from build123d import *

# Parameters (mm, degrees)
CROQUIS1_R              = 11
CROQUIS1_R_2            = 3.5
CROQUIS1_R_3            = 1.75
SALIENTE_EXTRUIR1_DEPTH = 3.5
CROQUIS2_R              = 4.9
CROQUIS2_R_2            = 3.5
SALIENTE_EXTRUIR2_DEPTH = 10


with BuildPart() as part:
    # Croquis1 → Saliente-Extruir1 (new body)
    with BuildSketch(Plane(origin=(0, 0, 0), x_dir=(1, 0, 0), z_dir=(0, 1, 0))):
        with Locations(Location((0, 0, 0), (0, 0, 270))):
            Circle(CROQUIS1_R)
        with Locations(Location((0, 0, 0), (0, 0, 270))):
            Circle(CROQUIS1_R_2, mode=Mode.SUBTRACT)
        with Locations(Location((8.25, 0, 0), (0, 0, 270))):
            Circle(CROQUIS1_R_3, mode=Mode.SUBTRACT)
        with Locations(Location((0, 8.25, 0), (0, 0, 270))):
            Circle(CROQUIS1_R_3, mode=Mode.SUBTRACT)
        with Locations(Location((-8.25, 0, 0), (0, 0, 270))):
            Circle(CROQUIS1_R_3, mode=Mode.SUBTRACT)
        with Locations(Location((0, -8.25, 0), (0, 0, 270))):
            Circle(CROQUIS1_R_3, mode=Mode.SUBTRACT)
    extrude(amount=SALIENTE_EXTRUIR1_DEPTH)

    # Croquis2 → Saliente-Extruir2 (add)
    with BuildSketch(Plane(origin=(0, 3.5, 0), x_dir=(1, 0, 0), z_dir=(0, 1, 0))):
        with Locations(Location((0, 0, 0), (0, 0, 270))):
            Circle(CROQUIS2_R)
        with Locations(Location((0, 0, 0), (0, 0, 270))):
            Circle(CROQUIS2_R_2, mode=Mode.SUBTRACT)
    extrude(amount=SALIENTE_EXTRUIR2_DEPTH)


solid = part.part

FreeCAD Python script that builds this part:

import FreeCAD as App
import Part
import Sketcher
Q = App.Units.Quantity

doc = App.newDocument("Part")
body = doc.addObject("PartDesign::Body", "Body")

sketch1 = body.newObject("Sketcher::SketchObject", "Sketch")
sketch1.AttachmentSupport = (doc.getObject("XZ_Plane"), [""])
sketch1.MapMode = "FlatFace"
sketch1.addGeometry(Part.Circle(App.Vector(0, 0, 0), App.Vector(0, 0, 1), 11), False)
sketch1.addGeometry(Part.Circle(App.Vector(0, -8.2, 0), App.Vector(0, 0, 1), 1.8), False)
sketch1.addGeometry(Part.Circle(App.Vector(-8.2, 0, 0), App.Vector(0, 0, 1), 1.8), False)
sketch1.addGeometry(Part.Circle(App.Vector(8.2, 0, 0), App.Vector(0, 0, 1), 1.8), False)
sketch1.addGeometry(Part.Circle(App.Vector(0, 0, 0), App.Vector(0, 0, 1), 3.5), False)
sketch1.addGeometry(Part.Circle(App.Vector(0, 8.2, 0), App.Vector(0, 0, 1), 1.8), False)
sketch1.addConstraint(Sketcher.Constraint("Coincident", 0, 3, -1, 1))
sketch1.addConstraint(Sketcher.Constraint("Coincident", 4, 3, -1, 1))
sketch1.addConstraint(Sketcher.Constraint("Equal", 1, 2))
sketch1.addConstraint(Sketcher.Constraint("Equal", 2, 3))
sketch1.addConstraint(Sketcher.Constraint("Equal", 3, 5))
sketch1.addConstraint(Sketcher.Constraint("Symmetric", 2, 3, 3, 3, -1, 1))
sketch1.addConstraint(Sketcher.Constraint("Symmetric", 1, 3, 5, 3, -1, 1))
sketch1.addConstraint(Sketcher.Constraint("PointOnObject", 1, 3, -2))
sketch1.addConstraint(Sketcher.Constraint("PointOnObject", 2, 3, -1))
sketch1.addConstraint(Sketcher.Constraint("Diameter", 0, Q("22 mm")))
sketch1.addConstraint(Sketcher.Constraint("Diameter", 4, Q("7 mm")))
sketch1.addConstraint(Sketcher.Constraint("Diameter", 1, Q("3.5 mm")))
sketch1.addConstraint(Sketcher.Constraint("DistanceX", 2, 3, 3, 3, Q("16.5 mm")))
sketch1.addConstraint(Sketcher.Constraint("DistanceY", 1, 3, 5, 3, Q("16.5 mm")))
pad1 = body.newObject("PartDesign::Pad", "Pad")
pad1.Profile = sketch1
pad1.Length = 3.5
pad1.Reversed = True

sketch2 = body.newObject("Sketcher::SketchObject", "Sketch001")
sketch2.AttachmentSupport = (doc.getObject("XZ_Plane"), [""])
sketch2.MapMode = "FlatFace"
sketch2.AttachmentOffset = App.Placement(App.Vector(0, 0, -3.5), App.Rotation())
sketch2.addGeometry(Part.Circle(App.Vector(0, 0, 0), App.Vector(0, 0, 1), 4.9), False)
sketch2.addGeometry(Part.Circle(App.Vector(0, 0, 0), App.Vector(0, 0, 1), 3.5), False)
sketch2.addConstraint(Sketcher.Constraint("Coincident", 0, 3, -1, 1))
sketch2.addConstraint(Sketcher.Constraint("Coincident", 1, 3, -1, 1))
sketch2.addConstraint(Sketcher.Constraint("Diameter", 1, Q("7 mm")))
sketch2.addConstraint(Sketcher.Constraint("Diameter", 0, Q("9.8 mm")))
pad2 = body.newObject("PartDesign::Pad", "Pad001")
pad2.Profile = sketch2
pad2.Length = 10
pad2.Reversed = True

doc.recompute()
